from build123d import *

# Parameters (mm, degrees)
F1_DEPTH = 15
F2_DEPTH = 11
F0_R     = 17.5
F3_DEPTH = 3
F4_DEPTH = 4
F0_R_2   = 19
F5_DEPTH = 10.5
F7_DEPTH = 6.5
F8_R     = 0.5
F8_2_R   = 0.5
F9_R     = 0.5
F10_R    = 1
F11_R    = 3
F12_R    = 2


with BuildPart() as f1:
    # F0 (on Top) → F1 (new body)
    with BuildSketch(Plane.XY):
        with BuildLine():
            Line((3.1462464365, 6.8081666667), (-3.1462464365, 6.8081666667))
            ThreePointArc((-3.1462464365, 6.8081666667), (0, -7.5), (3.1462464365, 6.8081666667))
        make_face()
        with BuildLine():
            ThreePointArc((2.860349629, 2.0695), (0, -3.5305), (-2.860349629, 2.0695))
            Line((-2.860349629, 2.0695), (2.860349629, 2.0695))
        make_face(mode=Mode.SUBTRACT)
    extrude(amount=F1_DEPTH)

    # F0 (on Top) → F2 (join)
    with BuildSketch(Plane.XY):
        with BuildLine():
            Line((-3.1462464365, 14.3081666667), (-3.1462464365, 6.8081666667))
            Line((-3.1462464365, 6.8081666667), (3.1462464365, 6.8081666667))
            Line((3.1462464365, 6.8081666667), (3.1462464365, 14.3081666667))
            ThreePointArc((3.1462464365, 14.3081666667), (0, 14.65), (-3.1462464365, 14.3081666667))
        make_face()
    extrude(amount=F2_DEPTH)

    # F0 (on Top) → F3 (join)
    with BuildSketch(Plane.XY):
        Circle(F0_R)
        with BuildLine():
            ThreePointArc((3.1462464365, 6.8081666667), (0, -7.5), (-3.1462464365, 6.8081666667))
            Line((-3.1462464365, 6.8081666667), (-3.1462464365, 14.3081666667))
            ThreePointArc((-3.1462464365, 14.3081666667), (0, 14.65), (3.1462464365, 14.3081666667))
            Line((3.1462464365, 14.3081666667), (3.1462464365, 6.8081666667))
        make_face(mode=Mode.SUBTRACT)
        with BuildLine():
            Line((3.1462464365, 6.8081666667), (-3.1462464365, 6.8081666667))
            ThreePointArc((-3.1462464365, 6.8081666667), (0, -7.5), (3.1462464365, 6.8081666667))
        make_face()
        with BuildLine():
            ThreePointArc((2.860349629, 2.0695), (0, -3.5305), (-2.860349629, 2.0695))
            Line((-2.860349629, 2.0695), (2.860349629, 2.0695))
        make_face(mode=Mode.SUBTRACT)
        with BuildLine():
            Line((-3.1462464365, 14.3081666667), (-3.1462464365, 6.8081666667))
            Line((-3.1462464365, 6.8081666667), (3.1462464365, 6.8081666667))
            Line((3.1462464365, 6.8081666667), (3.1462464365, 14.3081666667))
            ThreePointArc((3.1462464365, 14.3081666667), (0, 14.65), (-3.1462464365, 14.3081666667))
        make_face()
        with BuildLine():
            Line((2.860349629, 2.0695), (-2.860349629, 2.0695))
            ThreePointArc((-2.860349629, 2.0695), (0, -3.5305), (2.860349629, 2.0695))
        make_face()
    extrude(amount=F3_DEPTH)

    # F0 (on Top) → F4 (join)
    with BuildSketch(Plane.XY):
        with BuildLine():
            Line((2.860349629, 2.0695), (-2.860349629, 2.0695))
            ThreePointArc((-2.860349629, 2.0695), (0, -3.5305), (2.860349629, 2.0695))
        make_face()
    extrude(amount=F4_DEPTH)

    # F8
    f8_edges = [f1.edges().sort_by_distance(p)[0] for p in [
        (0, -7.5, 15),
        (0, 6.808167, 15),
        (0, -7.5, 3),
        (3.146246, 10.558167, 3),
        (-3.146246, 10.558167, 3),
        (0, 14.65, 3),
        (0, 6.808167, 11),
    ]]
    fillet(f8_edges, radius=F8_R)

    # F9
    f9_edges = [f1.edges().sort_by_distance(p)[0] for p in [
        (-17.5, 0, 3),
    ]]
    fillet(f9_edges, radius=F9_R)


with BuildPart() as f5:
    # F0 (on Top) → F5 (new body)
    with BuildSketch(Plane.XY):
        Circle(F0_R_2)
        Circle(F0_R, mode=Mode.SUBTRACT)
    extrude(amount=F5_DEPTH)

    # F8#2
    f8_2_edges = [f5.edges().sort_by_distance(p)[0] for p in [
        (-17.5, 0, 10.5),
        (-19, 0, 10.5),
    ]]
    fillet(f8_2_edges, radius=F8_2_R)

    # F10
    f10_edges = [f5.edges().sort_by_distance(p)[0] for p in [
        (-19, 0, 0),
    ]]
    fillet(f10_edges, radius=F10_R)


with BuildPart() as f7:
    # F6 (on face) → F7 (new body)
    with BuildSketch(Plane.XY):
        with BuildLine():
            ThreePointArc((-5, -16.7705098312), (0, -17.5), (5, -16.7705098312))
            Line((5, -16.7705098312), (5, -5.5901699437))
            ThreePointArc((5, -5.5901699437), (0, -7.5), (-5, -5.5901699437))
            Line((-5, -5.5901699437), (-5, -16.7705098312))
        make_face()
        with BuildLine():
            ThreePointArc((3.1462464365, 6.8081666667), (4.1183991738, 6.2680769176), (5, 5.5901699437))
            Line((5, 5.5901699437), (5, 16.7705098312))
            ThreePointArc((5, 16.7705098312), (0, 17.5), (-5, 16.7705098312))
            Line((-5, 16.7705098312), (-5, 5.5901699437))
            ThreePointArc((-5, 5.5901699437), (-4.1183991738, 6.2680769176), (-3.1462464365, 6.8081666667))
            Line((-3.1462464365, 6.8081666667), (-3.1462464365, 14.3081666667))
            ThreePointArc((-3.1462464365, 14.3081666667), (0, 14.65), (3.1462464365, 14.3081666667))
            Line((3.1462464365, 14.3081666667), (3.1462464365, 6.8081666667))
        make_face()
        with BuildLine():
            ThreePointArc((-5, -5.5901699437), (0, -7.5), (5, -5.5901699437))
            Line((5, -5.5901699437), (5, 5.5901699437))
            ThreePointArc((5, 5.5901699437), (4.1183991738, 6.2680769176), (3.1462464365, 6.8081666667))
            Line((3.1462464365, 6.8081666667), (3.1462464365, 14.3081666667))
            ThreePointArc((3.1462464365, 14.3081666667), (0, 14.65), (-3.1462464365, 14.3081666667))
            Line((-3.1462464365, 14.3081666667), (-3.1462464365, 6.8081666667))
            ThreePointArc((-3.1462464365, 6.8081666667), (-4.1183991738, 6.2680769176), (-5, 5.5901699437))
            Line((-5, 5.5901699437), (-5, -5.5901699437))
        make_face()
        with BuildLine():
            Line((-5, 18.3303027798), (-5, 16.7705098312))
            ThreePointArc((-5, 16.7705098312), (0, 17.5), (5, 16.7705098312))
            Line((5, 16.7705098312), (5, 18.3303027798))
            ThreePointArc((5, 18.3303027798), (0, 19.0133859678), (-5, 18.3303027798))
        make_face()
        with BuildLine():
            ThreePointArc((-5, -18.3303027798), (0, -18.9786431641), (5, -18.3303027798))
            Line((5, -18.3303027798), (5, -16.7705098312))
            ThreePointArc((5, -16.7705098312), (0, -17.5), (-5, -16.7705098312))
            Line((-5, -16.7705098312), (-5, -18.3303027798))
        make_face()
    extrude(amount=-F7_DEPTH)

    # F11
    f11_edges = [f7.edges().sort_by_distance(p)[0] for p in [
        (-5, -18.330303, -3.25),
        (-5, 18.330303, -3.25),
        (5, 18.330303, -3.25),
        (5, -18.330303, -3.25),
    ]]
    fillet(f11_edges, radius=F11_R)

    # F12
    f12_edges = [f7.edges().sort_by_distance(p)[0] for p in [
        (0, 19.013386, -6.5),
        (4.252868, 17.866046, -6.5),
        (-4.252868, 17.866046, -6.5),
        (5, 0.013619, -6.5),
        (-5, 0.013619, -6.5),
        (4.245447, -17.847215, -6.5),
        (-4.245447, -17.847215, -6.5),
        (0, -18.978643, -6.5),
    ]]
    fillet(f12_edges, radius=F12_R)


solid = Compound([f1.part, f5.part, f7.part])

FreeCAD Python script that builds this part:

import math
import FreeCAD as App
import Part
import Sketcher
Q = App.Units.Quantity


def edges_at(feature, points):
    """Names of the edges that pass closest to the given points."""
    edges = feature.Shape.Edges
    near = lambda p: min(range(len(edges)), key=lambda i: edges[i].distToShape(Part.Vertex(*p))[0])
    return sorted({f"Edge{near(p) + 1}" for p in points})

doc = App.newDocument("Part")
body = doc.addObject("PartDesign::Body", "Body")

sketch1 = body.newObject("Sketcher::SketchObject", "Sketch")
sketch1.AttachmentSupport = (doc.getObject("XY_Plane"), [""])
sketch1.MapMode = "FlatFace"
sketch1.addGeometry(Part.LineSegment(App.Vector(3.146246, 6.808167, 0), App.Vector(-3.146246, 6.808167, 0)), False)
sketch1.addGeometry(Part.ArcOfCircle(Part.Circle(App.Vector(0, 0, 0), App.Vector(0, 0, 1), 7.5), math.radians(114.802994), math.radians(425.197006)), False)
sketch1.addGeometry(Part.LineSegment(App.Vector(-2.86035, 2.0695, 0), App.Vector(2.86035, 2.0695, 0)), False)
sketch1.addGeometry(Part.ArcOfCircle(Part.Circle(App.Vector(0, 0, 0), App.Vector(0, 0, 1), 3.5305), math.radians(144.113775), math.radians(395.886225)), False)
sketch1.addConstraint(Sketcher.Constraint("Coincident", 0, 1, 1, 2))
sketch1.addConstraint(Sketcher.Constraint("Coincident", 1, 1, 0, 2))
sketch1.addConstraint(Sketcher.Constraint("Coincident", 2, 1, 3, 1))
sketch1.addConstraint(Sketcher.Constraint("Coincident", 3, 2, 2, 2))
sketch1.addConstraint(Sketcher.Constraint("Horizontal", 0))
sketch1.addConstraint(Sketcher.Constraint("Horizontal", 2))
sketch1.addConstraint(Sketcher.Constraint("Coincident", 1, 3, -1, 1))
sketch1.addConstraint(Sketcher.Constraint("Coincident", 3, 3, -1, 1))
sketch1.addConstraint(Sketcher.Constraint("Radius", 1, Q("7.5 mm")))
sketch1.addConstraint(Sketcher.Constraint("Radius", 3, Q("3.5305 mm")))
sketch1.addConstraint(Sketcher.Constraint("DistanceX", 2, 1, 2, 2, Q("5.720699 mm")))
sketch1.addConstraint(Sketcher.Constraint("DistanceX", 0, 2, 0, 1, Q("6.292493 mm")))
pad1 = body.newObject("PartDesign::Pad", "Pad")
pad1.Profile = sketch1
pad1.Length = 15

sketch2 = body.newObject("Sketcher::SketchObject", "Sketch001")
sketch2.AttachmentSupport = (doc.getObject("XY_Plane"), [""])
sketch2.MapMode = "FlatFace"
sketch2.addGeometry(Part.LineSegment(App.Vector(-3.146246, 14.308167, 0), App.Vector(-3.146246, 6.808167, 0)), False)
sketch2.addGeometry(Part.LineSegment(App.Vector(-3.146246, 6.808167, 0), App.Vector(3.146246, 6.808167, 0)), False)
sketch2.addGeometry(Part.LineSegment(App.Vector(3.146246, 6.808167, 0), App.Vector(3.146246, 14.308167, 0)), False)
sketch2.addGeometry(Part.ArcOfCircle(Part.Circle(App.Vector(0, 0, 0), App.Vector(0, 0, 1), 14.65), math.radians(77.598503), math.radians(102.401497)), False)
sketch2.addConstraint(Sketcher.Constraint("Coincident", 0, 2, 1, 1))
sketch2.addConstraint(Sketcher.Constraint("Coincident", 1, 2, 2, 1))
sketch2.addConstraint(Sketcher.Constraint("Coincident", 2, 2, 3, 1))
sketch2.addConstraint(Sketcher.Constraint("Coincident", 3, 2, 0, 1))
sketch2.addConstraint(Sketcher.Constraint("Vertical", 0))
sketch2.addConstraint(Sketcher.Constraint("Horizontal", 1))
sketch2.addConstraint(Sketcher.Constraint("Vertical", 2))
sketch2.addConstraint(Sketcher.Constraint("Coincident", 3, 3, -1, 1))
sketch2.addConstraint(Sketcher.Constraint("Horizontal", 2, 2, 3, 2))
sketch2.addConstraint(Sketcher.Constraint("Radius", 3, Q("14.65 mm")))
sketch2.addConstraint(Sketcher.Constraint("DistanceY", 0, 2, 0, 1, Q("7.5 mm")))
sketch2.addConstraint(Sketcher.Constraint("DistanceX", 1, 1, 1, 2, Q("6.292493 mm")))
pad2 = body.newObject("PartDesign::Pad", "Pad001")
pad2.Profile = sketch2
pad2.Length = 11

sketch3 = body.newObject("Sketcher::SketchObject", "Sketch002")
sketch3.AttachmentSupport = (doc.getObject("XY_Plane"), [""])
sketch3.MapMode = "FlatFace"
sketch3.addGeometry(Part.Circle(App.Vector(0, 0, 0), App.Vector(0, 0, 1), 17.5), False)
sketch3.addConstraint(Sketcher.Constraint("Coincident", 0, 3, -1, 1))
sketch3.addConstraint(Sketcher.Constraint("Diameter", 0, Q("35 mm")))
pad3 = body.newObject("PartDesign::Pad", "Pad002")
pad3.Profile = sketch3
pad3.Length = 3

sketch4 = body.newObject("Sketcher::SketchObject", "Sketch003")
sketch4.AttachmentSupport = (doc.getObject("XY_Plane"), [""])
sketch4.MapMode = "FlatFace"
sketch4.addGeometry(Part.LineSegment(App.Vector(2.86035, 2.0695, 0), App.Vector(-2.86035, 2.0695, 0)), False)
sketch4.addGeometry(Part.ArcOfCircle(Part.Circle(App.Vector(0, 0, 0), App.Vector(0, 0, 1), 3.5305), math.radians(144.113775), math.radians(395.886225)), False)
sketch4.addConstraint(Sketcher.Constraint("Coincident", 0, 1, 1, 2))
sketch4.addConstraint(Sketcher.Constraint("Coincident", 1, 1, 0, 2))
sketch4.addConstraint(Sketcher.Constraint("Horizontal", 0))
sketch4.addConstraint(Sketcher.Constraint("Coincident", 1, 3, -1, 1))
sketch4.addConstraint(Sketcher.Constraint("Radius", 1, Q("3.5305 mm")))
sketch4.addConstraint(Sketcher.Constraint("DistanceX", 0, 2, 0, 1, Q("5.720699 mm")))
pad4 = body.newObject("PartDesign::Pad", "Pad003")
pad4.Profile = sketch4
pad4.Length = 4
doc.recompute()

fillet = body.newObject("PartDesign::Fillet", "Fillet")
fillet.Base = (pad4, edges_at(pad4, [
    (0, -7.5, 15),
    (0, 6.808, 15),
    (0, -7.5, 3),
    (3.146, 10.558, 3),
    (-3.146, 10.558, 3),
    (0, 14.65, 3),
    (0, 6.808, 11),
]))
fillet.Radius = 0.5
doc.recompute()

fillet2 = body.newObject("PartDesign::Fillet", "Fillet001")
fillet2.Base = (fillet, edges_at(fillet, [(-17.5, 0, 3)]))
fillet2.Radius = 0.5
body2 = doc.addObject("PartDesign::Body", "Body001")

sketch5 = body2.newObject("Sketcher::SketchObject", "Sketch004")
sketch5.AttachmentSupport = (doc.getObject("XY_Plane001"), [""])
sketch5.MapMode = "FlatFace"
sketch5.addGeometry(Part.Circle(App.Vector(0, 0, 0), App.Vector(0, 0, 1), 19), False)
sketch5.addGeometry(Part.Circle(App.Vector(0, 0, 0), App.Vector(0, 0, 1), 17.5), False)
sketch5.addConstraint(Sketcher.Constraint("Coincident", 0, 3, -1, 1))
sketch5.addConstraint(Sketcher.Constraint("Coincident", 1, 3, -1, 1))
sketch5.addConstraint(Sketcher.Constraint("Diameter", 0, Q("38 mm")))
sketch5.addConstraint(Sketcher.Constraint("Diameter", 1, Q("35 mm")))
pad5 = body2.newObject("PartDesign::Pad", "Pad004")
pad5.Profile = sketch5
pad5.Length = 10.5
doc.recompute()

fillet3 = body2.newObject("PartDesign::Fillet", "Fillet002")
fillet3.Base = (pad5, edges_at(pad5, [(-17.5, 0, 10.5), (-19, 0, 10.5)]))
fillet3.Radius = 0.5
doc.recompute()

fillet4 = body2.newObject("PartDesign::Fillet", "Fillet003")
fillet4.Base = (fillet3, edges_at(fillet3, [(-19, 0, 0)]))
fillet4.Radius = 1
body3 = doc.addObject("PartDesign::Body", "Body002")

sketch6 = body3.newObject("Sketcher::SketchObject", "Sketch005")
sketch6.AttachmentSupport = (doc.getObject("XY_Plane002"), [""])
sketch6.MapMode = "FlatFace"
sketch6.addGeometry(Part.ArcOfCircle(Part.Circle(App.Vector(0, 0.372463, 0), App.Vector(0, 0, 1), 18.640923), math.radians(74.441206), math.radians(105.558794)), False)
sketch6.addGeometry(Part.LineSegment(App.Vector(-5, 18.330303, 0), App.Vector(-5, -18.330303, 0)), False)
sketch6.addGeometry(Part.ArcOfCircle(Part.Circle(App.Vector(0, 0.625523, 0), App.Vector(0, 0, 1), 19.604166), math.radians(-104.776419), math.radians(-75.223581)), False)
sketch6.addGeometry(Part.LineSegment(App.Vector(5, -18.330303, 0), App.Vector(5, 18.330303, 0)), False)
sketch6.addConstraint(Sketcher.Constraint("Coincident", 0, 2, 1, 1))
sketch6.addConstraint(Sketcher.Constraint("Coincident", 1, 2, 2, 1))
sketch6.addConstraint(Sketcher.Constraint("Coincident", 2, 2, 3, 1))
sketch6.addConstraint(Sketcher.Constraint("Coincident", 3, 2, 0, 1))
sketch6.addConstraint(Sketcher.Constraint("Vertical", 1))
sketch6.addConstraint(Sketcher.Constraint("Vertical", 3))
sketch6.addConstraint(Sketcher.Constraint("Symmetric", 0, 2, 2, 2, -1, 1))
sketch6.addConstraint(Sketcher.Constraint("PointOnObject", 0, 3, -2))
sketch6.addConstraint(Sketcher.Constraint("PointOnObject", 2, 3, -2))
sketch6.addConstraint(Sketcher.Constraint("DistanceX", 0, 2, -1, 1, Q("5 mm")))
sketch6.addConstraint(Sketcher.Constraint("Radius", 0, Q("18.640923 mm")))
sketch6.addConstraint(Sketcher.Constraint("Radius", 2, Q("19.604166 mm")))
sketch6.addConstraint(Sketcher.Constraint("DistanceY", 1, 2, 1, 1, Q("36.660606 mm")))
pad6 = body3.newObject("PartDesign::Pad", "Pad005")
pad6.Profile = sketch6
pad6.Length = 6.5
pad6.Reversed = True
doc.recompute()

fillet5 = body3.newObject("PartDesign::Fillet", "Fillet004")
fillet5.Base = (pad6, edges_at(pad6, [
    (-5, -18.33, -3.25),
    (-5, 18.33, -3.25),
    (5, 18.33, -3.25),
    (5, -18.33, -3.25),
]))
fillet5.Radius = 3
doc.recompute()

fillet6 = body3.newObject("PartDesign::Fillet", "Fillet005")
fillet6.Base = (fillet5, edges_at(fillet5, [
    (0, 19.013, -6.5),
    (4.253, 17.866, -6.5),
    (-4.253, 17.866, -6.5),
    (5, 0.014, -6.5),
    (-5, 0.014, -6.5),
    (4.245, -17.847, -6.5),
    (-4.245, -17.847, -6.5),
    (0, -18.979, -6.5),
]))
fillet6.Radius = 2

doc.recompute()
